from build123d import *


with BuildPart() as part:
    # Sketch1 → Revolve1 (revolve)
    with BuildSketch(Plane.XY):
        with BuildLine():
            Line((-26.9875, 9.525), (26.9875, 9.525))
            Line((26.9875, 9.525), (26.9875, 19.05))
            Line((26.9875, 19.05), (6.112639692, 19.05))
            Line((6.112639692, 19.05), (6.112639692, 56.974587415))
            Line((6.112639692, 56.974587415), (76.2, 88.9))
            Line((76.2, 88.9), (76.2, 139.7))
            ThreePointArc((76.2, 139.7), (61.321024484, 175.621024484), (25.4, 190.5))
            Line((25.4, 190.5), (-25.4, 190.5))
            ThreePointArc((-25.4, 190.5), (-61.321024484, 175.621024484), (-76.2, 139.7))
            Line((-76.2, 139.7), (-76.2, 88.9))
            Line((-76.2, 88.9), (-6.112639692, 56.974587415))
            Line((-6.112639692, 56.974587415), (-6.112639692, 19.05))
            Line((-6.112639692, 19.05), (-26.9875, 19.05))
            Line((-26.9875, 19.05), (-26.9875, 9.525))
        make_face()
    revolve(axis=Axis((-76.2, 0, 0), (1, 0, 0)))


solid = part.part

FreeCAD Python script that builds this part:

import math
import FreeCAD as App
import Part
import Sketcher
Q = App.Units.Quantity

doc = App.newDocument("Part")
body = doc.addObject("PartDesign::Body", "Body")

# Sketch on XY plane
sketch1 = body.newObject("Sketcher::SketchObject", "Sketch")
sketch1.AttachmentSupport = (doc.getObject("XY_Plane"), [""])
sketch1.MapMode = "FlatFace"
sketch1.addGeometry([
    Part.LineSegment(App.Vector(-27, 10, 0), App.Vector(27, 10, 0)),  # 0
    Part.LineSegment(App.Vector(27, 10, 0), App.Vector(27, 19, 0)),  # 1
    Part.LineSegment(App.Vector(27, 19, 0), App.Vector(6, 19, 0)),  # 2
    Part.LineSegment(App.Vector(6, 19, 0), App.Vector(6, 57, 0)),  # 3
    Part.LineSegment(App.Vector(6, 57, 0), App.Vector(76, 89, 0)),  # 4
    Part.LineSegment(App.Vector(76, 89, 0), App.Vector(76, 140, 0)),  # 5
    Part.ArcOfCircle(Part.Circle(App.Vector(25, 140, 0), App.Vector(0, 0, 1), 51), math.radians(0), math.radians(90)),  # 6
    Part.LineSegment(App.Vector(25, 190, 0), App.Vector(-25, 190, 0)),  # 7
    Part.ArcOfCircle(Part.Circle(App.Vector(-25, 140, 0), App.Vector(0, 0, 1), 51), math.radians(90), math.radians(180)),  # 8
    Part.LineSegment(App.Vector(-76, 140, 0), App.Vector(-76, 89, 0)),  # 9
    Part.LineSegment(App.Vector(-76, 89, 0), App.Vector(-6, 57, 0)),  # 10
    Part.LineSegment(App.Vector(-6, 57, 0), App.Vector(-6, 19, 0)),  # 11
    Part.LineSegment(App.Vector(-6, 19, 0), App.Vector(-27, 19, 0)),  # 12
    Part.LineSegment(App.Vector(-27, 19, 0), App.Vector(-27, 10, 0)),  # 13
], False)
sketch1.addConstraint([
    Sketcher.Constraint("Coincident", 0, 2, 1, 1),
    Sketcher.Constraint("Coincident", 1, 2, 2, 1),
    Sketcher.Constraint("Coincident", 2, 2, 3, 1),
    Sketcher.Constraint("Coincident", 3, 2, 4, 1),
    Sketcher.Constraint("Coincident", 4, 2, 5, 1),
    Sketcher.Constraint("Tangent", 5, 2, 6, 1),
    Sketcher.Constraint("Tangent", 6, 2, 7, 1),
    Sketcher.Constraint("Tangent", 7, 2, 8, 1),
    Sketcher.Constraint("Tangent", 8, 2, 9, 1),
    Sketcher.Constraint("Coincident", 9, 2, 10, 1),
    Sketcher.Constraint("Coincident", 10, 2, 11, 1),
    Sketcher.Constraint("Coincident", 11, 2, 12, 1),
    Sketcher.Constraint("Coincident", 12, 2, 13, 1),
    Sketcher.Constraint("Coincident", 13, 2, 0, 1),
    Sketcher.Constraint("Horizontal", 0),
    Sketcher.Constraint("Vertical", 1),
    Sketcher.Constraint("Horizontal", 2),
    Sketcher.Constraint("Vertical", 3),
    Sketcher.Constraint("Vertical", 5),
    Sketcher.Constraint("Horizontal", 7),
    Sketcher.Constraint("Vertical", 9),
    Sketcher.Constraint("Vertical", 11),
    Sketcher.Constraint("Horizontal", 12),
    Sketcher.Constraint("Vertical", 13),
    Sketcher.Constraint("Equal", 6, 8),
    Sketcher.Constraint("Symmetric", 4, 2, 9, 2, -2),
    Sketcher.Constraint("Symmetric", 3, 2, 10, 2, -2),
    Sketcher.Constraint("Symmetric", 1, 2, 12, 2, -2),
    Sketcher.Constraint("Equal", 7, 5),
    Sketcher.Constraint("Radius", 6, Q("2 in")),
    Sketcher.Constraint("DistanceX", 7, 2, 7, 1, Q("2 in")),
    Sketcher.Constraint("DistanceY", -1, 1, 6, 3, Q("5.5 in")),
    Sketcher.Constraint("DistanceX", 0, 1, 0, 2, Q("2.125 in")),
    Sketcher.Constraint("DistanceY", 1, 1, 1, 2, Q("0.375 in")),
    Sketcher.Constraint("DistanceY", -1, 1, 1, 2, Q("0.75 in")),
    Sketcher.Constraint("DistanceX", 2, 2, 2, 1, 20.87486),
    Sketcher.Constraint("DistanceY", 3, 1, 3, 2, 37.924587),
])
revolution = body.newObject("PartDesign::Revolution", "Revolution")
revolution.Profile = sketch1
revolution.ReferenceAxis = (sketch1, ["H_Axis"])
revolution.Angle = 360

doc.recompute()
